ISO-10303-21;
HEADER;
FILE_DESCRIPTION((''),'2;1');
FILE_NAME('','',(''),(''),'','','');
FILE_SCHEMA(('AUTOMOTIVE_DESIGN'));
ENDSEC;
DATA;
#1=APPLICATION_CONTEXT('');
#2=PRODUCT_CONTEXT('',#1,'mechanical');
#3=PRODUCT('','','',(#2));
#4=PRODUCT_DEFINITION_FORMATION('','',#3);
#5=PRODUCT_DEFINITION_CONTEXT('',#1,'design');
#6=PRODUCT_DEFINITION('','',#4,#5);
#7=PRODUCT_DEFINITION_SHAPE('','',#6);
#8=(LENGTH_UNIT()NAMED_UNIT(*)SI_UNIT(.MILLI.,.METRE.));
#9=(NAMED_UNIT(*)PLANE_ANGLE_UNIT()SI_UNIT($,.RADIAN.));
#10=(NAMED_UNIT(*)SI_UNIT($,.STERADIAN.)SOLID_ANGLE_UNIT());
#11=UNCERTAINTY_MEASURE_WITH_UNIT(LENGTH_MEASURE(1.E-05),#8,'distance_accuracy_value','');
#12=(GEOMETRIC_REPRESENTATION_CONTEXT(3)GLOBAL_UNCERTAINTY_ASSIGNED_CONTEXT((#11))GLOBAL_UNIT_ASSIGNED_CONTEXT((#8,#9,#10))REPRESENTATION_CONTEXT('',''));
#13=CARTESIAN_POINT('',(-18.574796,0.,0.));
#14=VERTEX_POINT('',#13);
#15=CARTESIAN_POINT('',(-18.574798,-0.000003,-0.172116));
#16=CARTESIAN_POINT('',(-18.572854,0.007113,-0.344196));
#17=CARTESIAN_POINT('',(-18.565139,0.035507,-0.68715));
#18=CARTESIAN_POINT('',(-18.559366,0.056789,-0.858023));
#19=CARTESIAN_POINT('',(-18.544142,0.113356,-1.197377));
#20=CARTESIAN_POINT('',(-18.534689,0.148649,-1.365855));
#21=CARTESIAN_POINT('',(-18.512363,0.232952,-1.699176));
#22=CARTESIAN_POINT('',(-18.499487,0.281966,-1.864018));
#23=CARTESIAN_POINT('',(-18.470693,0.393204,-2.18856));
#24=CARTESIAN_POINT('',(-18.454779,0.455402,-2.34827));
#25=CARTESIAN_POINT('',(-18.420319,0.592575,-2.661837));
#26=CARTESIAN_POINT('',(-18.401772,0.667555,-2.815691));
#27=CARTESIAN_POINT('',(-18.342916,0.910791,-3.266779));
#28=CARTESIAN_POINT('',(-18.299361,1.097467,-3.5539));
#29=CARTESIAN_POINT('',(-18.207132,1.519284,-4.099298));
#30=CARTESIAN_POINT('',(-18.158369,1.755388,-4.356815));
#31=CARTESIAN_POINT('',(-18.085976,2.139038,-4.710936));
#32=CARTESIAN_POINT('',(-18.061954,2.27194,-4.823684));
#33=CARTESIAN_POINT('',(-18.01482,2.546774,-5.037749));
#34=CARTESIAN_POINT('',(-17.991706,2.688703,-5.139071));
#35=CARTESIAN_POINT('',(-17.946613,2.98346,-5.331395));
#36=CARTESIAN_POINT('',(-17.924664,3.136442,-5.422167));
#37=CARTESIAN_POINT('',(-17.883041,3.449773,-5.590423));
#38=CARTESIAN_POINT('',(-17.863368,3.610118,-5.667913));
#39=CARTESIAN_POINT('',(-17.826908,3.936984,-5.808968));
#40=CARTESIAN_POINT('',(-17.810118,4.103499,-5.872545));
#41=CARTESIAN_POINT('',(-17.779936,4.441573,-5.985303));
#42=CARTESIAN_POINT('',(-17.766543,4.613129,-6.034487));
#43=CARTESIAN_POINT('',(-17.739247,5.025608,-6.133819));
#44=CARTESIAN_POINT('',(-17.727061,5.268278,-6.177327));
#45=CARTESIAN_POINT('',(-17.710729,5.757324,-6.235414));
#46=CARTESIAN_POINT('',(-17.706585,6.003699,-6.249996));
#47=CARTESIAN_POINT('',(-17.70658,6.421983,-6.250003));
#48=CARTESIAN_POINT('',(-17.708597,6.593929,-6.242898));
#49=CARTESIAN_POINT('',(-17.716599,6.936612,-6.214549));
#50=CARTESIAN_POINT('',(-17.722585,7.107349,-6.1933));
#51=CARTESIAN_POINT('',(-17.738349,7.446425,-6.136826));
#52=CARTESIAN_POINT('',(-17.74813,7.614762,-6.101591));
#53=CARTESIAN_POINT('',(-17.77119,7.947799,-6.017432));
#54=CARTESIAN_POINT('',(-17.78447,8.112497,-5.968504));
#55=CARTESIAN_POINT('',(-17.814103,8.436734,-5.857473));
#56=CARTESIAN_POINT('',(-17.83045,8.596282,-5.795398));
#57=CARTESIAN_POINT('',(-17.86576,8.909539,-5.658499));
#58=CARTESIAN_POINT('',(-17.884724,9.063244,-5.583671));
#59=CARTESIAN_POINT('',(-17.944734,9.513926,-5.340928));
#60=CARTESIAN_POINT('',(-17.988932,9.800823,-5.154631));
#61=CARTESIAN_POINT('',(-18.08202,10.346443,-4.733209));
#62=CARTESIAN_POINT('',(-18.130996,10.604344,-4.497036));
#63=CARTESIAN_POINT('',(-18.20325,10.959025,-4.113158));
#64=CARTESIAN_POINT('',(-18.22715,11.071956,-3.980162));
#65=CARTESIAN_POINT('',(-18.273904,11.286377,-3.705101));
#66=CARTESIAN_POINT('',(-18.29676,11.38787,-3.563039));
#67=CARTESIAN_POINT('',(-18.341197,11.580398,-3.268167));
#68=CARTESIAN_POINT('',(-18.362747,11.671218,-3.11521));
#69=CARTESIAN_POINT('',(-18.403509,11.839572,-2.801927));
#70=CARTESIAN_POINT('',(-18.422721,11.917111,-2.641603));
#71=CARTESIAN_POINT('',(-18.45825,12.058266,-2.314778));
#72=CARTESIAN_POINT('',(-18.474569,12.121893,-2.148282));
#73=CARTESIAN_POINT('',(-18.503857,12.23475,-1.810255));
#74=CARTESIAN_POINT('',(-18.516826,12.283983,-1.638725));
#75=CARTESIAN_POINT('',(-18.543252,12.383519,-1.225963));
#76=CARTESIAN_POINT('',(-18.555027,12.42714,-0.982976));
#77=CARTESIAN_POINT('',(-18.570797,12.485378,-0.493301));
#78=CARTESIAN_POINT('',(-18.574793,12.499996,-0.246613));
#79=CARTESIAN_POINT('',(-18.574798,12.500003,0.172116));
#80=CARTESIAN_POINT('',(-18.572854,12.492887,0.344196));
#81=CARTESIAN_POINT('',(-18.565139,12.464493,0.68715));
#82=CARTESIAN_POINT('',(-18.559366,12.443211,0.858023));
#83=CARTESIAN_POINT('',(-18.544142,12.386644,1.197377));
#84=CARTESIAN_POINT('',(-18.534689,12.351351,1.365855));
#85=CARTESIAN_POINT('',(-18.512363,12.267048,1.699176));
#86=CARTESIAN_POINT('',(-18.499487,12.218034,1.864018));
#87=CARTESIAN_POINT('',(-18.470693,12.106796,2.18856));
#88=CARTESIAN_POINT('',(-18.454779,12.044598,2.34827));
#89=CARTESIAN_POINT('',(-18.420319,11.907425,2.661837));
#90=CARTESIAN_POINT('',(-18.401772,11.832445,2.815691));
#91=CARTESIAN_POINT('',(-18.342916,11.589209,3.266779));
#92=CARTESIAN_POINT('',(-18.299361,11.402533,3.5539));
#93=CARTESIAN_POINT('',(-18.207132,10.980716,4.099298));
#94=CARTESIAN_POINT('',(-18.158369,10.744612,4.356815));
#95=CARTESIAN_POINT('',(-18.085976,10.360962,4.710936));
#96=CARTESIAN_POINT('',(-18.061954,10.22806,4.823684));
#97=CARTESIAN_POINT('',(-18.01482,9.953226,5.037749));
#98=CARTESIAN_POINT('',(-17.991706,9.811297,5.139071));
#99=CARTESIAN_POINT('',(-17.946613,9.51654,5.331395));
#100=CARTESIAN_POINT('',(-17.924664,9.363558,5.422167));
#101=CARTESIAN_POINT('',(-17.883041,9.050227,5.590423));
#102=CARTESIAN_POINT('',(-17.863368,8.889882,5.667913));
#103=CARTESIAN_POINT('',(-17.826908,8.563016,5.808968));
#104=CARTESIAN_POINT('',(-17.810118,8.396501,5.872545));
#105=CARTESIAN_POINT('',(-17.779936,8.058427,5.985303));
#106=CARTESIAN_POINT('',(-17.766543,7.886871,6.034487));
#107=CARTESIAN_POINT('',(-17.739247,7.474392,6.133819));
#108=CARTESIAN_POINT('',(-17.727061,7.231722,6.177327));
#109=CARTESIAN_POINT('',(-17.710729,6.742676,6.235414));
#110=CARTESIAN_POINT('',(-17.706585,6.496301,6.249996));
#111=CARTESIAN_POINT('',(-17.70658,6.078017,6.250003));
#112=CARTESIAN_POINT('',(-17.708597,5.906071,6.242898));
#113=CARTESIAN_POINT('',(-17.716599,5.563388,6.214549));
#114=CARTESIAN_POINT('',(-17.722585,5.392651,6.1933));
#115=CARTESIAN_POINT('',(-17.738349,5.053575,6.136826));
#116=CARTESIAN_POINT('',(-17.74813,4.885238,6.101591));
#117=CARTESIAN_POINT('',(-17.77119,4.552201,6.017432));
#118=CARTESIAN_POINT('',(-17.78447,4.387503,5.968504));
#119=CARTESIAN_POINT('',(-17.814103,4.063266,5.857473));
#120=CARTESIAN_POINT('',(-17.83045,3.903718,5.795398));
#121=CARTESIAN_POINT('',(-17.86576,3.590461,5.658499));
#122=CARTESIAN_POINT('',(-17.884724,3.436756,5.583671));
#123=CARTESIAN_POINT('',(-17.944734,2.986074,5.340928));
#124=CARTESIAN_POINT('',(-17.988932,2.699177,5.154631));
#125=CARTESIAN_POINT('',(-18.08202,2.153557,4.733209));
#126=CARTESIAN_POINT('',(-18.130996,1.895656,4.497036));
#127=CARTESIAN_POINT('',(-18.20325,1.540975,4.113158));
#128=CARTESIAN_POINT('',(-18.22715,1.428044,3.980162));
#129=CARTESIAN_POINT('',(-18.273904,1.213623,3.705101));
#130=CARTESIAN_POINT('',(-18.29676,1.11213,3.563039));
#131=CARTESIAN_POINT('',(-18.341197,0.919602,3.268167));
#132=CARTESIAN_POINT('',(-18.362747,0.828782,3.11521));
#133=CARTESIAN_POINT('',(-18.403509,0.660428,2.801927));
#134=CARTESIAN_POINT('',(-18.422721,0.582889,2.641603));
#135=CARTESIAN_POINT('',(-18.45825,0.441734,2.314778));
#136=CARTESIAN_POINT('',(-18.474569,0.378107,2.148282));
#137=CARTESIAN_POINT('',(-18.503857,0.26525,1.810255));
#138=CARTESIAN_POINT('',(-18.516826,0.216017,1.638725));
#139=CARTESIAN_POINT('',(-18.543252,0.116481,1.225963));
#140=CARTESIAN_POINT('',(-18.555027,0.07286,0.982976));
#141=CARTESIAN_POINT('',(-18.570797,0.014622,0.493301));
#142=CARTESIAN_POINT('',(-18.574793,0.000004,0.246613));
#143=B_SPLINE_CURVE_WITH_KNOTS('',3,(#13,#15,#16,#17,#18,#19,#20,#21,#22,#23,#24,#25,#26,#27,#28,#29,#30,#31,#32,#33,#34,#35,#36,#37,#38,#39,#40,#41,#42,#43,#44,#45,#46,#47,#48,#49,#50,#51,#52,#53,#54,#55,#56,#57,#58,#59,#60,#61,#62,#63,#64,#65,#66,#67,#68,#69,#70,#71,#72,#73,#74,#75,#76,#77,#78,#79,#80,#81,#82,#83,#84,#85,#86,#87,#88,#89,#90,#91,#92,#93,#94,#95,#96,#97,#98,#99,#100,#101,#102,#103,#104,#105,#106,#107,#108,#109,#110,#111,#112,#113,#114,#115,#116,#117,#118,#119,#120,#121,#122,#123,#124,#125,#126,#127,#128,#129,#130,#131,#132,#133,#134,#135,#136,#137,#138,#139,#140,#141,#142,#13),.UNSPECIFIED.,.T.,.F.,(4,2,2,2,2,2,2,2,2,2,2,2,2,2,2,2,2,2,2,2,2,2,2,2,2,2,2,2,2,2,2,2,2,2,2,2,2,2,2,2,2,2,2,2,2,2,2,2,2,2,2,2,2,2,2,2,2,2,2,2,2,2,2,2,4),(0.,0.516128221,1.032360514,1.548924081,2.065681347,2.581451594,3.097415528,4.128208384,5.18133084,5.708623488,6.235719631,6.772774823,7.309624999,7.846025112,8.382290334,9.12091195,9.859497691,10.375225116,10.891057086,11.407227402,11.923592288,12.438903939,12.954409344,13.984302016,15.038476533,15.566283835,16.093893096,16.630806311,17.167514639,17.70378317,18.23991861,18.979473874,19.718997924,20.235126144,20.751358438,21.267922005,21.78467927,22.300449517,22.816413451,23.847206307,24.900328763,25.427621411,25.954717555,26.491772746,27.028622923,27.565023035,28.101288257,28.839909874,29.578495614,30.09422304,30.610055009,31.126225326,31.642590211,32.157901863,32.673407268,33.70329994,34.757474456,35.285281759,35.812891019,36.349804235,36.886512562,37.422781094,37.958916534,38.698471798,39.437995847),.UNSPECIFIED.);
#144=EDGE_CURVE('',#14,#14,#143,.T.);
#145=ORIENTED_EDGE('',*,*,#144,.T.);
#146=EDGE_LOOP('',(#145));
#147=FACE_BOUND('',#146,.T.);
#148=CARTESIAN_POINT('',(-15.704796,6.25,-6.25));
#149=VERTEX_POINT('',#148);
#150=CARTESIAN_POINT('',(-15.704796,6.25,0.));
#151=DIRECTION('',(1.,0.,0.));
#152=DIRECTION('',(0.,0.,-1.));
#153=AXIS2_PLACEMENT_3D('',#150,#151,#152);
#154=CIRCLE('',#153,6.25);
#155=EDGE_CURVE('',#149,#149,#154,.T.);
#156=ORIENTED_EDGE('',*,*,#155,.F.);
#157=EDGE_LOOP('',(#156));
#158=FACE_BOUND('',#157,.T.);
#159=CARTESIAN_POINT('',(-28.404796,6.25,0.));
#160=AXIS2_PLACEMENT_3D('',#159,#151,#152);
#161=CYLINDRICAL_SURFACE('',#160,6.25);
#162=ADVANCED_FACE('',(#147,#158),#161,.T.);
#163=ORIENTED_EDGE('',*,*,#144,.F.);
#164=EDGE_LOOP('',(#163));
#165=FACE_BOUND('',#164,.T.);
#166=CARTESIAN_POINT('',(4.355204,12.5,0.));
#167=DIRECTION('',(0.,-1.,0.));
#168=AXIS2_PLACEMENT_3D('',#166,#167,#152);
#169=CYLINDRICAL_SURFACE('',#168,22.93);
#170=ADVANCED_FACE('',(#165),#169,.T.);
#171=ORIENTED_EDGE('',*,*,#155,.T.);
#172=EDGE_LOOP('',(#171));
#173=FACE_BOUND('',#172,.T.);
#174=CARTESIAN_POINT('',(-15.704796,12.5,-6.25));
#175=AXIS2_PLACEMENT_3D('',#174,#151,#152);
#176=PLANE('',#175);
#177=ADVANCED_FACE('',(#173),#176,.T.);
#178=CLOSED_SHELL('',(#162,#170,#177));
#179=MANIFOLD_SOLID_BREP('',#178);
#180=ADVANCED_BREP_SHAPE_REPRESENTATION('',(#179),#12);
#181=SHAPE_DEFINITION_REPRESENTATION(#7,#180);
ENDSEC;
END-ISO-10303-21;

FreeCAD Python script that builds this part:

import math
import FreeCAD as App
import Part
import Sketcher

V = App.Vector
Q = App.Units.Quantity

doc = App.newDocument("Part")
body = doc.addObject("PartDesign::Body", "Body")

sketch1 = body.newObject("Sketcher::SketchObject", "Sketch")
sketch1.AttachmentSupport = (doc.getObject("XZ_Plane"), [""])
sketch1.MapMode = "FlatFace"
sketch1.addGeometry(Part.LineSegment(V(-15.704796, -6.25, 0), V(-17.706582, -6.25, 0)), False)
sketch1.addGeometry(Part.ArcOfCircle(Part.Circle(V(4.355204, 0, 0), V(0, 0, 1), 22.93), math.radians(164.182824), math.radians(195.817176)), False)
sketch1.addGeometry(Part.LineSegment(V(-17.706582, 6.25, 0), V(-15.704796, 6.25, 0)), False)
sketch1.addGeometry(Part.LineSegment(V(-15.704796, 6.25, 0), V(-15.704796, -6.25, 0)), False)
sketch1.addConstraint(Sketcher.Constraint("Coincident", 0, 2, 1, 2))
sketch1.addConstraint(Sketcher.Constraint("Coincident", 1, 1, 2, 1))
sketch1.addConstraint(Sketcher.Constraint("Coincident", 2, 2, 3, 1))
sketch1.addConstraint(Sketcher.Constraint("Coincident", 3, 2, 0, 1))
sketch1.addConstraint(Sketcher.Constraint("Horizontal", 0))
sketch1.addConstraint(Sketcher.Constraint("Horizontal", 2))
sketch1.addConstraint(Sketcher.Constraint("Vertical", 3))
sketch1.addConstraint(Sketcher.Constraint("Symmetric", 0, 2, 1, 1, -1))
sketch1.addConstraint(Sketcher.Constraint("Radius", 1, Q("22.93 mm")))
sketch1.addConstraint(Sketcher.Constraint("DistanceY", 3, 2, 3, 1, Q("12.5 mm")))
sketch1.addConstraint(Sketcher.Constraint("DistanceX", 2, 2, 1, 3, Q("20.06 mm")))
sketch1.addConstraint(Sketcher.Constraint("DistanceX", 0, 2, -1, 1, Q("17.706582 mm")))
pad1 = body.newObject("PartDesign::Pad", "Pad")
pad1.Profile = sketch1
pad1.Length = 12.5
pad1.Reversed = True

sketch2 = body.newObject("Sketcher::SketchObject", "Sketch001")
sketch2.AttachmentSupport = (doc.getObject("YZ_Plane"), [""])
sketch2.MapMode = "FlatFace"
sketch2.AttachmentOffset = App.Placement(V(0, 0, -15.704796), App.Rotation())
sketch2.addGeometry(Part.LineSegment(V(12.5, 6.25, 0), V(6.25, 6.25, 0)), False)
sketch2.addGeometry(Part.ArcOfCircle(Part.Circle(V(6.25, 0, 0), V(0, 0, 1), 6.25), math.radians(0), math.radians(90)), False)
sketch2.addGeometry(Part.LineSegment(V(12.5, 0, 0), V(12.5, 6.25, 0)), False)
sketch2.addGeometry(Part.ArcOfCircle(Part.Circle(V(6.25, 0, 0), V(0, 0, 1), 6.25), math.radians(-90), math.radians(0)), False)
sketch2.addGeometry(Part.LineSegment(V(6.25, -6.25, 0), V(12.5, -6.25, 0)), False)
sketch2.addGeometry(Part.LineSegment(V(12.5, -6.25, 0), V(12.5, 0, 0)), False)
sketch2.addGeometry(Part.ArcOfCircle(Part.Circle(V(6.25, 0, 0), V(0, 0, 1), 6.25), math.radians(-180), math.radians(-90)), False)
sketch2.addGeometry(Part.LineSegment(V(0, 0, 0), V(0, -6.25, 0)), False)
sketch2.addGeometry(Part.LineSegment(V(0, -6.25, 0), V(6.25, -6.25, 0)), False)
sketch2.addGeometry(Part.LineSegment(V(6.25, 6.25, 0), V(0, 6.25, 0)), False)
sketch2.addGeometry(Part.LineSegment(V(0, 6.25, 0), V(0, 0, 0)), False)
sketch2.addGeometry(Part.ArcOfCircle(Part.Circle(V(6.25, 0, 0), V(0, 0, 1), 6.25), math.radians(90), math.radians(180)), False)
sketch2.addConstraint(Sketcher.Constraint("Tangent", 0, 2, 1, 2))
sketch2.addConstraint(Sketcher.Constraint("Tangent", 1, 1, 2, 1))
sketch2.addConstraint(Sketcher.Constraint("Coincident", 2, 2, 0, 1))
sketch2.addConstraint(Sketcher.Constraint("Tangent", 3, 1, 4, 1))
sketch2.addConstraint(Sketcher.Constraint("Coincident", 4, 2, 5, 1))
sketch2.addConstraint(Sketcher.Constraint("Tangent", 5, 2, 3, 2))
sketch2.addConstraint(Sketcher.Constraint("Tangent", 6, 1, 7, 1))
sketch2.addConstraint(Sketcher.Constraint("Coincident", 7, 2, 8, 1))
sketch2.addConstraint(Sketcher.Constraint("Tangent", 8, 2, 6, 2))
sketch2.addConstraint(Sketcher.Constraint("Coincident", 9, 2, 10, 1))
sketch2.addConstraint(Sketcher.Constraint("Tangent", 10, 2, 11, 2))
sketch2.addConstraint(Sketcher.Constraint("Tangent", 11, 1, 9, 1))
sketch2.addConstraint(Sketcher.Constraint("Horizontal", 0))
sketch2.addConstraint(Sketcher.Constraint("Vertical", 2))
sketch2.addConstraint(Sketcher.Constraint("Horizontal", 4))
sketch2.addConstraint(Sketcher.Constraint("Vertical", 5))
sketch2.addConstraint(Sketcher.Constraint("Vertical", 7))
sketch2.addConstraint(Sketcher.Constraint("Horizontal", 8))
sketch2.addConstraint(Sketcher.Constraint("Horizontal", 9))
sketch2.addConstraint(Sketcher.Constraint("Vertical", 10))
sketch2.addConstraint(Sketcher.Constraint("Coincident", 6, 1, -1, 1))
sketch2.addConstraint(Sketcher.Constraint("Coincident", 10, 2, -1, 1))
sketch2.addConstraint(Sketcher.Constraint("Coincident", 3, 3, 1, 3))
sketch2.addConstraint(Sketcher.Constraint("Coincident", 6, 3, 1, 3))
sketch2.addConstraint(Sketcher.Constraint("Coincident", 11, 1, 0, 2))
sketch2.addConstraint(Sketcher.Constraint("Equal", 1, 3))
sketch2.addConstraint(Sketcher.Constraint("Radius", 1, Q("6.25 mm")))
pocket1 = body.newObject("PartDesign::Pocket", "Pocket")
pocket1.Profile = sketch2
pocket1.Length = 12.7

doc.recompute()
